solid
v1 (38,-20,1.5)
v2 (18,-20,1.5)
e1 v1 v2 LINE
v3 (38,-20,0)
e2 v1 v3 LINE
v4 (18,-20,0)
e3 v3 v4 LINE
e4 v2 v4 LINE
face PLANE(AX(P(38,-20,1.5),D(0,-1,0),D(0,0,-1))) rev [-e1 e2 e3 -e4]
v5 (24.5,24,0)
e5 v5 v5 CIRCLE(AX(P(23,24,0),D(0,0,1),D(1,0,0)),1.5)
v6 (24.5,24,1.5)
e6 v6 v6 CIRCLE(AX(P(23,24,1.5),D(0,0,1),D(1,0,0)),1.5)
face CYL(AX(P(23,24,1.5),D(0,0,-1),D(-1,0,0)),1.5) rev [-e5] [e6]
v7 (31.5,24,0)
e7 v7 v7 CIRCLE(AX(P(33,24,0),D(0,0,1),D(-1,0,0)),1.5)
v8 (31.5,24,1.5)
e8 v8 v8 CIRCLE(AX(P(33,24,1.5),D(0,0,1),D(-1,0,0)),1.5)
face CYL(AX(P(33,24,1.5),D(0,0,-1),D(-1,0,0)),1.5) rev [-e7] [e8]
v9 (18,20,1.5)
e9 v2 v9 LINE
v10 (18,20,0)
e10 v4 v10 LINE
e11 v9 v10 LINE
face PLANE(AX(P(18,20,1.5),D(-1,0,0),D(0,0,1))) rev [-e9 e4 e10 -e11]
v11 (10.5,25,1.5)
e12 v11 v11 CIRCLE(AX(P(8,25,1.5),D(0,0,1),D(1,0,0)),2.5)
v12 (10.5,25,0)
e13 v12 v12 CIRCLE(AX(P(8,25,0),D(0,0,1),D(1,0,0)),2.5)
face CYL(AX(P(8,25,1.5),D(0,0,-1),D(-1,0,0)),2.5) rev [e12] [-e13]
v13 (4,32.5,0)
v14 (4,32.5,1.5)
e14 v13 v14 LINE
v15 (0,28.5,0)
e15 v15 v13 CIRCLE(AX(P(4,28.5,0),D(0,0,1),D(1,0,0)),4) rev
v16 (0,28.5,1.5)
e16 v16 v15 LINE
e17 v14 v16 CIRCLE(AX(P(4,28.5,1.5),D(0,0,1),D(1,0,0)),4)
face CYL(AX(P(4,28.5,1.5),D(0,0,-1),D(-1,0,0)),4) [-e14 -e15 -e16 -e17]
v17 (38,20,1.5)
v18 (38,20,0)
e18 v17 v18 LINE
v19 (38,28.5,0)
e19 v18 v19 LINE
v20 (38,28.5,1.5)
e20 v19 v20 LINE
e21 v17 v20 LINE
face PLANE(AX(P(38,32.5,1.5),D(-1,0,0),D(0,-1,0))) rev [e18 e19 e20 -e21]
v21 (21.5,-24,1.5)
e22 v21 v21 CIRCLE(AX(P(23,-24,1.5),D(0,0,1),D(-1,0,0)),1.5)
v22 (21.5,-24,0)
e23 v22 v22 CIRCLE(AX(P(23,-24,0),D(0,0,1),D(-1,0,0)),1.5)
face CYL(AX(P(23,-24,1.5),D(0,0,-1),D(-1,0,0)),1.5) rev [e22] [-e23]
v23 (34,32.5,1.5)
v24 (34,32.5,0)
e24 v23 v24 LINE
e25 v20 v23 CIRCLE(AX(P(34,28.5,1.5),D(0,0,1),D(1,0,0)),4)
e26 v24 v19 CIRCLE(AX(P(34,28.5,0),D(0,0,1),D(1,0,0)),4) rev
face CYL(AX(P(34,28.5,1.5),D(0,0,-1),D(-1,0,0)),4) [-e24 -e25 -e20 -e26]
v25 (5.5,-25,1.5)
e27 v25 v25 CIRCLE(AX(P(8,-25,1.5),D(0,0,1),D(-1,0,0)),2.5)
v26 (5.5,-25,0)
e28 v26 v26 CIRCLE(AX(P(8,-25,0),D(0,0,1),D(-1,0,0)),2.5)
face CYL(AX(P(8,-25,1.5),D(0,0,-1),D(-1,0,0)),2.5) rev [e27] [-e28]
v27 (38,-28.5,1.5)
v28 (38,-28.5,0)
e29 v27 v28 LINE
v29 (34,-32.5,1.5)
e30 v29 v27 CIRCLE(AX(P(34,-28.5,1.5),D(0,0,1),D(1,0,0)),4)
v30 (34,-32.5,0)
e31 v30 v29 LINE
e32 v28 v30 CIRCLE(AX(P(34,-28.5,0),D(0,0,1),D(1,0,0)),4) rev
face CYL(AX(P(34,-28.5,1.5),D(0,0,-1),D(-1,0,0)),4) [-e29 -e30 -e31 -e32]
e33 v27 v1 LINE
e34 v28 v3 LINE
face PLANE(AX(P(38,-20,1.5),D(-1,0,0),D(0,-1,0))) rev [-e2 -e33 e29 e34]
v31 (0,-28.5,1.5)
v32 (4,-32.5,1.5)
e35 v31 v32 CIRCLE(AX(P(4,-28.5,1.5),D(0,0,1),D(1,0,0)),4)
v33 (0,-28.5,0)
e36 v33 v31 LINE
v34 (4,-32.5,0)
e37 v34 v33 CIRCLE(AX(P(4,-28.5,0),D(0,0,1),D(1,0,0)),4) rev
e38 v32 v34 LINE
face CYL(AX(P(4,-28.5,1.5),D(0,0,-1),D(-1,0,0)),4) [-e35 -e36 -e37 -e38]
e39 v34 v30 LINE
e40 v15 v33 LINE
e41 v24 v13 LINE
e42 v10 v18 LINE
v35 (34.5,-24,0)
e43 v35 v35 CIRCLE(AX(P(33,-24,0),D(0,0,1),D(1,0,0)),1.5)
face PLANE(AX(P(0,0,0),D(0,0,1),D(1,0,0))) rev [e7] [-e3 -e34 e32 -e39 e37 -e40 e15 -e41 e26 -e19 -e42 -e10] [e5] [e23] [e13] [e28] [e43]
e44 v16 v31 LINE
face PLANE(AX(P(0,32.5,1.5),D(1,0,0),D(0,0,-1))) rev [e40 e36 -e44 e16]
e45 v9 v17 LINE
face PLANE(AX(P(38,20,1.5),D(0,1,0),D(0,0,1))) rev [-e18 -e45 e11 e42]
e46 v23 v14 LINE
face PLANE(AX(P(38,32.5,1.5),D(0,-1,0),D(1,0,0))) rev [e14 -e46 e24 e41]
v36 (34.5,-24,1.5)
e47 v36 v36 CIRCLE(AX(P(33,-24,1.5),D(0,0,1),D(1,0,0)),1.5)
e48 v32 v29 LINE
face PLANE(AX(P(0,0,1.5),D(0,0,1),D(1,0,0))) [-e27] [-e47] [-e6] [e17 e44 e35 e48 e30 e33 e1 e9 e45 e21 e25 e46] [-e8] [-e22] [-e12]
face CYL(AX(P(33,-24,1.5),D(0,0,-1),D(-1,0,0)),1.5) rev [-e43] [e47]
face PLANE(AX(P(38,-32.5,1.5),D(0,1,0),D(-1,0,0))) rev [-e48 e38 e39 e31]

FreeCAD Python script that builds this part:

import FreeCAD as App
import Part
import Sketcher

V = App.Vector
Q = App.Units.Quantity


def edges_at(feature, points):
    """Names of the edges that pass closest to the given points."""
    edges = feature.Shape.Edges
    near = lambda p: min(range(len(edges)), key=lambda i: edges[i].distToShape(Part.Vertex(*p))[0])
    return sorted({f"Edge{near(p) + 1}" for p in points})


def add_polygon(sketch, points):
    """Adds a closed chain of lines whose ends are joined by coincident constraints."""
    first, n = sketch.GeometryCount, len(points)
    for a, b in zip(points, points[1:] + points[:1]):
        sketch.addGeometry(Part.LineSegment(App.Vector(*a, 0), App.Vector(*b, 0)), False)
    for i in range(n):
        sketch.addConstraint(Sketcher.Constraint("Coincident", first + i, 2, first + (i + 1) % n, 1))

doc = App.newDocument("Part")
params = doc.addObject("Spreadsheet::Sheet", "Params")
for row, (alias, value) in enumerate([
    ("sketch1_diameter", "3 mm"),
    ("sketch1_diameter2", "5 mm"),
    ("sketch1_width", "20 mm"),
    ("sketch1_width2", "38 mm"),
    ("sketch1_height", "40 mm"),
    ("pad1_length", "1.5 mm"),
    ("fillet_radius", "4 mm"),
], start=1):
    params.set(f"A{row}", alias)
    params.set(f"B{row}", "=" + value)
    params.setAlias(f"B{row}", alias)

body = doc.addObject("PartDesign::Body", "Body")

sketch1 = body.newObject("Sketcher::SketchObject", "Sketch")
sketch1.AttachmentSupport = (doc.getObject("XY_Plane"), [""])
sketch1.MapMode = "FlatFace"
add_polygon(sketch1, [(38, -32.5), (38, -20), (18, -20), (18, 20), (38, 20), (38, 32.5), (0, 32.5), (0, -32.5)])
sketch1.addGeometry(Part.Circle(V(33, -24, 0), V(0, 0, 1), 1.5), False)
sketch1.addGeometry(Part.Circle(V(23, -24, 0), V(0, 0, 1), 1.5), False)
sketch1.addGeometry(Part.Circle(V(8, -25, 0), V(0, 0, 1), 2.5), False)
sketch1.addGeometry(Part.Circle(V(33, 24, 0), V(0, 0, 1), 1.5), False)
sketch1.addGeometry(Part.Circle(V(23, 24, 0), V(0, 0, 1), 1.5), False)
sketch1.addGeometry(Part.Circle(V(8, 25, 0), V(0, 0, 1), 2.5), False)
sketch1.addConstraint([
    Sketcher.Constraint("Vertical", 0),
    Sketcher.Constraint("Horizontal", 1),
    Sketcher.Constraint("Vertical", 2),
    Sketcher.Constraint("Horizontal", 3),
    Sketcher.Constraint("Vertical", 4),
    Sketcher.Constraint("Horizontal", 5),
    Sketcher.Constraint("Vertical", 6),
    Sketcher.Constraint("Horizontal", 7),
    Sketcher.Constraint("Equal", 8, 9),
    Sketcher.Constraint("Equal", 9, 11),
    Sketcher.Constraint("Equal", 11, 12),
    Sketcher.Constraint("Equal", 10, 13),
    Sketcher.Constraint("Symmetric", 5, 2, 6, 2, -1, 1),
    Sketcher.Constraint("Symmetric", 8, 3, 11, 3, -1),
    Sketcher.Constraint("Symmetric", 9, 3, 12, 3, -1),
    Sketcher.Constraint("Symmetric", 10, 3, 13, 3, -1),
    Sketcher.Constraint("Symmetric", 0, 2, 3, 2, -1),
    Sketcher.Constraint("Horizontal", 8, 3, 9, 3),
    Sketcher.Constraint("Diameter", 8, Q("3 mm")),
    Sketcher.Constraint("Diameter", 10, Q("5 mm")),
    Sketcher.Constraint("DistanceX", 1, 2, 1, 1, Q("20 mm")),
    Sketcher.Constraint("DistanceX", 5, 2, 5, 1, Q("38 mm")),
    Sketcher.Constraint("DistanceY", 2, 1, 2, 2, Q("40 mm")),
    Sketcher.Constraint("DistanceY", 6, 2, 6, 1, Q("65 mm")),
    Sketcher.Constraint("DistanceX", -1, 1, 8, 3, Q("33 mm")),
    Sketcher.Constraint("DistanceY", 8, 3, -1, 1, Q("24 mm")),
    Sketcher.Constraint("DistanceX", -1, 1, 9, 3, Q("23 mm")),
    Sketcher.Constraint("DistanceX", -1, 1, 10, 3, Q("8 mm")),
    Sketcher.Constraint("DistanceY", 10, 3, -1, 1, Q("25 mm")),
])
sketch1.setExpression("Constraints[26]", "Params.sketch1_diameter")
sketch1.setExpression("Constraints[27]", "Params.sketch1_diameter2")
sketch1.setExpression("Constraints[28]", "Params.sketch1_width")
sketch1.setExpression("Constraints[29]", "Params.sketch1_width2")
sketch1.setExpression("Constraints[30]", "Params.sketch1_height")
pad1 = body.newObject("PartDesign::Pad", "Pad")
pad1.Profile = sketch1
pad1.setExpression("Length", "Params.pad1_length")
doc.recompute()

fillet = body.newObject("PartDesign::Fillet", "Fillet")
fillet.Base = (pad1, edges_at(pad1, [
    (38, -32.5, 0.75),
    (0, -32.5, 0.75),
    (0, 32.5, 0.75),
    (38, 32.5, 0.75),
]))
fillet.setExpression("Radius", "Params.fillet_radius")

doc.recompute()
